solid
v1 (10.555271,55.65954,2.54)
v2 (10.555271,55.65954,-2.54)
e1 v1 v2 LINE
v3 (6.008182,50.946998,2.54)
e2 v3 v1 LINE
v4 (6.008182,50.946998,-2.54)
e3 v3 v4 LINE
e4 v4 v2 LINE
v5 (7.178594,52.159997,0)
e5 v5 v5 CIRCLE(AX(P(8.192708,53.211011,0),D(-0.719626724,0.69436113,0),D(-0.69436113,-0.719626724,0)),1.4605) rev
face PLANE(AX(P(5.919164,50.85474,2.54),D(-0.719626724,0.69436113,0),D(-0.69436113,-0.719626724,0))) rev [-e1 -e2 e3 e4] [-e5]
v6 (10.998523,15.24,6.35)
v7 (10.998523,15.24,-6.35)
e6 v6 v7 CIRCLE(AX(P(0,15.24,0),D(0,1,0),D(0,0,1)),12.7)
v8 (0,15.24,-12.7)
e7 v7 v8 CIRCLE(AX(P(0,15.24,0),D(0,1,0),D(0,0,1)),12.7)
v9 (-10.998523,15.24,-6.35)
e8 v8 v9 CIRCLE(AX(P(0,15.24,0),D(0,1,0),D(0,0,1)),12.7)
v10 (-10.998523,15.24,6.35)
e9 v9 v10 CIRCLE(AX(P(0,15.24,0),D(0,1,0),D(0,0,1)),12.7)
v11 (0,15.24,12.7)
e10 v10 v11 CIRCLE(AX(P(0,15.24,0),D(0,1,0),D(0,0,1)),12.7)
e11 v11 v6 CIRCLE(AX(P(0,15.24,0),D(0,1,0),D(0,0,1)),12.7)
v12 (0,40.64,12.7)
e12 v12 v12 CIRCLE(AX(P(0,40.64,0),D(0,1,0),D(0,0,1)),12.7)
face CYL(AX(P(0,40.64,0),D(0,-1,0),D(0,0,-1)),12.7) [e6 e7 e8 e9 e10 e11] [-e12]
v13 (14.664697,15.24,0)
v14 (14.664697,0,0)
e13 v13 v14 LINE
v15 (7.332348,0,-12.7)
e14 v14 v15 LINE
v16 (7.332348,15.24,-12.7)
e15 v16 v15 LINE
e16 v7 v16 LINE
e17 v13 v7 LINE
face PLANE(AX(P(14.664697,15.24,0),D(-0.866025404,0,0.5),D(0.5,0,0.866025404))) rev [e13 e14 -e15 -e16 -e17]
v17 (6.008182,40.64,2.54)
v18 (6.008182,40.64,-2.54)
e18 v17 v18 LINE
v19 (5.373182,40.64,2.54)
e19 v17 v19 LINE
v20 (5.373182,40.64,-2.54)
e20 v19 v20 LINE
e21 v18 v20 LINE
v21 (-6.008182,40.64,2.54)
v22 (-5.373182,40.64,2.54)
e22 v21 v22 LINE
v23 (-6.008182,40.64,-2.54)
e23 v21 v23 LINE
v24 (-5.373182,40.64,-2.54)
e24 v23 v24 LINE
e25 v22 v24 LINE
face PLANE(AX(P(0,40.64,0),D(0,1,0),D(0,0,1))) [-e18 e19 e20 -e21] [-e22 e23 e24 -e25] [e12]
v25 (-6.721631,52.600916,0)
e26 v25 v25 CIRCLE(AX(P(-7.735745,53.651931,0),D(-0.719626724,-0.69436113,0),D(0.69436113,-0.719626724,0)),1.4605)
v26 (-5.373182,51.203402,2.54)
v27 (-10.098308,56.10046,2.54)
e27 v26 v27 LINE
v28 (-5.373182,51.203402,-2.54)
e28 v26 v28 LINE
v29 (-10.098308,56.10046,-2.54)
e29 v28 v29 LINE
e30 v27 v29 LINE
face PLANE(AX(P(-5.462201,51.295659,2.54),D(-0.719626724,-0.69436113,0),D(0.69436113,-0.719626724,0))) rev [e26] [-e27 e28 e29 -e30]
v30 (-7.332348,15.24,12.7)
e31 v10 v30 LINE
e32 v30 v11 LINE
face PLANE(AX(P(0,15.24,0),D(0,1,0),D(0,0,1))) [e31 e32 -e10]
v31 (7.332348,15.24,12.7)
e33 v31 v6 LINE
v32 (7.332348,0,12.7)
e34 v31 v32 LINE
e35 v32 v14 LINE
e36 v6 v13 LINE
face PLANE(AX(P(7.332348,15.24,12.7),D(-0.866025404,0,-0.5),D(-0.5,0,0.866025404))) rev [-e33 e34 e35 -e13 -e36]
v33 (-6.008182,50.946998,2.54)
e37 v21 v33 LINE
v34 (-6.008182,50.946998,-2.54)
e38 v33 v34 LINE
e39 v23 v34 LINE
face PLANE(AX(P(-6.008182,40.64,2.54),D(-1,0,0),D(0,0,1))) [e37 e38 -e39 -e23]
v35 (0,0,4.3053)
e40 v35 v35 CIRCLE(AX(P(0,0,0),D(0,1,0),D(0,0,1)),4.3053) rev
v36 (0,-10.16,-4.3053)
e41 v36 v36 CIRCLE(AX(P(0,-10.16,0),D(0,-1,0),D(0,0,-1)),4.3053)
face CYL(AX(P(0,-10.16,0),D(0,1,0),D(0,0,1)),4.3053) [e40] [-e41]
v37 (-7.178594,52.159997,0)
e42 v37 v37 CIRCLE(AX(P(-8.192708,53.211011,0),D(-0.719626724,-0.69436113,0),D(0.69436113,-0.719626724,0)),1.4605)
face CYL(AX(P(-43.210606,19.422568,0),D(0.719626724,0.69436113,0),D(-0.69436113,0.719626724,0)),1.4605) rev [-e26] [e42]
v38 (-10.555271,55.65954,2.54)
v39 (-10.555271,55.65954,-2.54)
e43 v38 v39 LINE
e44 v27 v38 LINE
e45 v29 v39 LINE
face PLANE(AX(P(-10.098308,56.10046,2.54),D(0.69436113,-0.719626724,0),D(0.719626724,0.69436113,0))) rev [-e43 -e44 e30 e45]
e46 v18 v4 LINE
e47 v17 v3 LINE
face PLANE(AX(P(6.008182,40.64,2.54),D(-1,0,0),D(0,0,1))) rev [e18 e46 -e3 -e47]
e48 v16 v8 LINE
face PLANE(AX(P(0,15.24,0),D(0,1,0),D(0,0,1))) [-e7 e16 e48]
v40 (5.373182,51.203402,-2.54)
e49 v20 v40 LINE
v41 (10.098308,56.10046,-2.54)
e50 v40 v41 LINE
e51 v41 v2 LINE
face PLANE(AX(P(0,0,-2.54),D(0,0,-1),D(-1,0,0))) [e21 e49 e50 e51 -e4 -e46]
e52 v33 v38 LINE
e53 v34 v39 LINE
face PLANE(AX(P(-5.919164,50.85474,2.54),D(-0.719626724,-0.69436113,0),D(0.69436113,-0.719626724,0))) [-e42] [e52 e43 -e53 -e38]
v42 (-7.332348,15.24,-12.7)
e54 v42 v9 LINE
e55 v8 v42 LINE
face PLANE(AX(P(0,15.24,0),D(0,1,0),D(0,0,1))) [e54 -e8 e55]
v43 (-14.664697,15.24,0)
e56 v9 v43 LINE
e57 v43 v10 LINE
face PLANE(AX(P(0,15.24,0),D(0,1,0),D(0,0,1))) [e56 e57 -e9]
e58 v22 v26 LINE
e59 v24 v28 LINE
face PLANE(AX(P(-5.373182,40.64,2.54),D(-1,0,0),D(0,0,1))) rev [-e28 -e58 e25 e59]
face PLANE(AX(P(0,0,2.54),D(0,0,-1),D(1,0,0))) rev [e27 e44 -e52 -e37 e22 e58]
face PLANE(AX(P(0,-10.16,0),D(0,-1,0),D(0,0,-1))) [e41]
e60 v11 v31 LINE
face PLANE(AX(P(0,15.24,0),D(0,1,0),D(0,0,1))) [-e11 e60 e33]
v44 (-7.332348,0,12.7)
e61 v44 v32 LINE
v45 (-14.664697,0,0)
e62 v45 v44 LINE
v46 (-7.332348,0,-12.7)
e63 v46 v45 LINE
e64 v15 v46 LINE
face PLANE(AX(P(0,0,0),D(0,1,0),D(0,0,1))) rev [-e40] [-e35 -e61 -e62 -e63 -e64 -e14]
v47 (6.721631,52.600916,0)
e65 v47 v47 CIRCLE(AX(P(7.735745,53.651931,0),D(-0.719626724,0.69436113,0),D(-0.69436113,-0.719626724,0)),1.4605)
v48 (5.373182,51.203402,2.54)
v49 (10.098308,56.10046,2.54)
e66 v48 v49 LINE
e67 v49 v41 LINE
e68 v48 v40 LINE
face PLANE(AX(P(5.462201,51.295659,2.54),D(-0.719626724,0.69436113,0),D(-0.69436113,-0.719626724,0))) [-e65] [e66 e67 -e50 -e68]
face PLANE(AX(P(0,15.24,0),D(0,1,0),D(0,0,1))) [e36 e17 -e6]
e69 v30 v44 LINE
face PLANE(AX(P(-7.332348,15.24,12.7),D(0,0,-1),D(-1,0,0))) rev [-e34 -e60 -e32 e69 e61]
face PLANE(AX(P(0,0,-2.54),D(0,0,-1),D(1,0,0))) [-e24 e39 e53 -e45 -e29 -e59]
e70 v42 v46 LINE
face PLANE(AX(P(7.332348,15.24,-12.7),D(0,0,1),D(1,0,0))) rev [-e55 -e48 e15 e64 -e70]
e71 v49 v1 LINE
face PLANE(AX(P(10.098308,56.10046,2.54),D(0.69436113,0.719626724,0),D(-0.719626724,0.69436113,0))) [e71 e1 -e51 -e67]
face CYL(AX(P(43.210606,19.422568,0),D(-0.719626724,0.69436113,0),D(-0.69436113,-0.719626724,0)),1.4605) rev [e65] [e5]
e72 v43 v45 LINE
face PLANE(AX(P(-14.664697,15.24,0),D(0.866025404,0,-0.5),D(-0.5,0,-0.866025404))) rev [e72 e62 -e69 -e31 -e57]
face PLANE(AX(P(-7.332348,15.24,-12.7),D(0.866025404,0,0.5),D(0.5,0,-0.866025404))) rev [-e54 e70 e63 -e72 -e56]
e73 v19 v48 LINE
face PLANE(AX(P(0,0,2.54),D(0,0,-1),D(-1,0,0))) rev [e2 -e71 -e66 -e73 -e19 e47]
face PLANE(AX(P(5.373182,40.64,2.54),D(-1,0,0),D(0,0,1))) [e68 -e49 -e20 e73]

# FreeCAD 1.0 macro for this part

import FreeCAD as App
import Part
import Sketcher
from FreeCAD import Vector
Q = App.Units.Quantity

doc = App.newDocument("Part")
params = doc.addObject("Spreadsheet::Sheet", "Params")
for row, (alias, value) in enumerate([
    ("pad1_length", "0.6 in"),
    ("sketch2_diameter", "1 in"),
    ("pad2_length", "1 in"),
    ("sketch3_diameter", "0.339 in"),
    ("pad3_length", "0.4 in"),
    ("sketch4_width", "0.025 in"),
    ("sketch4_length", "0.025 in"),
    ("pad4_length", "0.2 in"),
    ("sketch5_diameter", "0.115 in"),
    ("pocket1_length", "0.025 in"),
], start=1):
    params.set(f"A{row}", alias)
    params.set(f"B{row}", "=" + value)
    params.setAlias(f"B{row}", alias)

body = doc.addObject("PartDesign::Body", "Body")

sketch1 = body.newObject("Sketcher::SketchObject", "Sketch")
sketch1.AttachmentSupport = (doc.getObject("XZ_Plane"), [""])
sketch1.MapMode = "FlatFace"
sketch1.addGeometry([
    Part.LineSegment(Vector(7, -13, 0), Vector(-7, -13, 0)),
    Part.LineSegment(Vector(-7, -13, 0), Vector(-15, 0, 0)),
    Part.LineSegment(Vector(-15, 0, 0), Vector(-7, 13, 0)),
    Part.LineSegment(Vector(-7, 13, 0), Vector(7, 13, 0)),
    Part.LineSegment(Vector(7, 13, 0), Vector(15, 0, 0)),
    Part.LineSegment(Vector(15, 0, 0), Vector(7, -13, 0)),
], False)
sketch1.addConstraint([
    Sketcher.Constraint("Coincident", 0, 2, 1, 1),
    Sketcher.Constraint("Coincident", 1, 2, 2, 1),
    Sketcher.Constraint("Coincident", 2, 2, 3, 1),
    Sketcher.Constraint("Coincident", 3, 2, 4, 1),
    Sketcher.Constraint("Coincident", 4, 2, 5, 1),
    Sketcher.Constraint("Coincident", 5, 2, 0, 1),
    Sketcher.Constraint("Horizontal", 0),
    Sketcher.Constraint("Horizontal", 3),
    Sketcher.Constraint("Symmetric", 0, 2, 3, 2, -1, 1),
    Sketcher.Constraint("Symmetric", 1, 2, 4, 2, -1, 1),
    Sketcher.Constraint("PointOnObject", 1, 2, -1),
    Sketcher.Constraint("Parallel", 2, 5),
    Sketcher.Constraint("Vertical", 0, 2, 2, 2),
    Sketcher.Constraint("Angle", 1, Q("120 deg")),
    Sketcher.Constraint("DistanceY", 0, 2, 2, 2, Q("1 in")),
    Sketcher.Constraint("DistanceX", 0, 2, 0, 1, 14.664697),
])
pad1 = body.newObject("PartDesign::Pad", "Pad")
pad1.Profile = sketch1
pad1.setExpression("Length", "Params.pad1_length")
pad1.Reversed = True

sketch2 = body.newObject("Sketcher::SketchObject", "Sketch001")
sketch2.AttachmentSupport = (doc.getObject("XZ_Plane"), [""])
sketch2.MapMode = "FlatFace"
sketch2.AttachmentOffset = App.Placement(Vector(0, 0, -0.6 * 25.4), App.Rotation())
sketch2.addGeometry(Part.Circle(Vector(0, 0, 0), Vector(0, 0, 1), 13), False)
sketch2.addConstraint([
    Sketcher.Constraint("Coincident", 0, 3, -1, 1),
    Sketcher.Constraint("Diameter", 0, Q("1 in")),
])
sketch2.setExpression("Constraints[1]", "Params.sketch2_diameter")
pad2 = body.newObject("PartDesign::Pad", "Pad001")
pad2.Profile = sketch2
pad2.setExpression("Length", "Params.pad2_length")
pad2.Reversed = True

sketch3 = body.newObject("Sketcher::SketchObject", "Sketch002")
sketch3.AttachmentSupport = (doc.getObject("XZ_Plane"), [""])
sketch3.MapMode = "FlatFace"
sketch3.addGeometry(Part.Circle(Vector(0, 0, 0), Vector(0, 0, 1), 4.3), False)
sketch3.addConstraint([
    Sketcher.Constraint("Coincident", 0, 3, -1, 1),
    Sketcher.Constraint("Diameter", 0, Q("0.339 in")),
])
sketch3.setExpression("Constraints[1]", "Params.sketch3_diameter")
pad3 = body.newObject("PartDesign::Pad", "Pad002")
pad3.Profile = sketch3
pad3.setExpression("Length", "Params.pad3_length")

sketch4 = body.newObject("Sketcher::SketchObject", "Sketch003")
sketch4.AttachmentSupport = (doc.getObject("XY_Plane"), [""])
sketch4.MapMode = "FlatFace"
sketch4.addGeometry([
    Part.LineSegment(Vector(6, 40.6, 0), Vector(6, 50.9, 0)),
    Part.LineSegment(Vector(6, 50.9, 0), Vector(10.6, 55.7, 0)),
    Part.LineSegment(Vector(10.6, 55.7, 0), Vector(10.1, 56.1, 0)),
    Part.LineSegment(Vector(10.1, 56.1, 0), Vector(5.4, 51.2, 0)),
    Part.LineSegment(Vector(5.4, 51.2, 0), Vector(5.4, 40.6, 0)),
    Part.LineSegment(Vector(5.4, 40.6, 0), Vector(6, 40.6, 0)),
], False)
sketch4.addConstraint([
    Sketcher.Constraint("Coincident", 0, 2, 1, 1),
    Sketcher.Constraint("Coincident", 1, 2, 2, 1),
    Sketcher.Constraint("Coincident", 2, 2, 3, 1),
    Sketcher.Constraint("Coincident", 3, 2, 4, 1),
    Sketcher.Constraint("Coincident", 4, 2, 5, 1),
    Sketcher.Constraint("Coincident", 5, 2, 0, 1),
    Sketcher.Constraint("Vertical", 0),
    Sketcher.Constraint("Vertical", 4),
    Sketcher.Constraint("Horizontal", 5),
    Sketcher.Constraint("Perpendicular", 1, 2),
    Sketcher.Constraint("Perpendicular", 2, 3),
    Sketcher.Constraint("DistanceY", -1, 1, 4, 2, Q("1.6 in")),
    Sketcher.Constraint("DistanceX", 5, 1, 5, 2, Q("0.025 in")),
    Sketcher.Constraint("Distance", 2, Q("0.025 in")),
    Sketcher.Constraint("DistanceY", 4, 2, 4, 1, 10.563402),
    Sketcher.Constraint("DistanceY", 0, 1, 0, 2, 10.306998),
    Sketcher.Constraint("DistanceX", -1, 1, 1, 2, 10.555271),
    Sketcher.Constraint("DistanceY", -1, 1, 1, 2, 55.65954),
])
sketch4.setExpression("Constraints[12]", "Params.sketch4_width")
sketch4.setExpression("Constraints[13]", "Params.sketch4_length")
pad4 = body.newObject("PartDesign::Pad", "Pad003")
pad4.Profile = sketch4
pad4.setExpression("Length", "Params.pad4_length")
pad4.Midplane = True

sketch5 = body.newObject("Sketcher::SketchObject", "Sketch004")
sketch5.Placement = App.Placement(Vector(-22.802788, 22.002198, 0), App.Rotation(Vector(0, 0, 1), Vector(0.69436113, 0.719626724, 0), Vector(-0.719626724, 0.69436113, 0), "ZXY"))
sketch5.addGeometry(Part.Circle(Vector(0, 44, 0), Vector(0, 0, 1), 1.5), False)
sketch5.addConstraint([
    Sketcher.Constraint("PointOnObject", 0, 3, -2),
    Sketcher.Constraint("Diameter", 0, Q("0.115 in")),
    Sketcher.Constraint("DistanceY", -1, 1, 0, 3, 43.980764),
])
sketch5.setExpression("Constraints[1]", "Params.sketch5_diameter")
pocket1 = body.newObject("PartDesign::Pocket", "Pocket")
pocket1.Profile = sketch5
pocket1.setExpression("Length", "Params.pocket1_length")
doc.recompute()

mirrored = body.newObject("PartDesign::Mirrored", "Mirrored")
mirrored.Originals = [pad4, pocket1]
mirrored.MirrorPlane = (doc.getObject("YZ_Plane"), [""])
body.Tip = mirrored

doc.recompute()
